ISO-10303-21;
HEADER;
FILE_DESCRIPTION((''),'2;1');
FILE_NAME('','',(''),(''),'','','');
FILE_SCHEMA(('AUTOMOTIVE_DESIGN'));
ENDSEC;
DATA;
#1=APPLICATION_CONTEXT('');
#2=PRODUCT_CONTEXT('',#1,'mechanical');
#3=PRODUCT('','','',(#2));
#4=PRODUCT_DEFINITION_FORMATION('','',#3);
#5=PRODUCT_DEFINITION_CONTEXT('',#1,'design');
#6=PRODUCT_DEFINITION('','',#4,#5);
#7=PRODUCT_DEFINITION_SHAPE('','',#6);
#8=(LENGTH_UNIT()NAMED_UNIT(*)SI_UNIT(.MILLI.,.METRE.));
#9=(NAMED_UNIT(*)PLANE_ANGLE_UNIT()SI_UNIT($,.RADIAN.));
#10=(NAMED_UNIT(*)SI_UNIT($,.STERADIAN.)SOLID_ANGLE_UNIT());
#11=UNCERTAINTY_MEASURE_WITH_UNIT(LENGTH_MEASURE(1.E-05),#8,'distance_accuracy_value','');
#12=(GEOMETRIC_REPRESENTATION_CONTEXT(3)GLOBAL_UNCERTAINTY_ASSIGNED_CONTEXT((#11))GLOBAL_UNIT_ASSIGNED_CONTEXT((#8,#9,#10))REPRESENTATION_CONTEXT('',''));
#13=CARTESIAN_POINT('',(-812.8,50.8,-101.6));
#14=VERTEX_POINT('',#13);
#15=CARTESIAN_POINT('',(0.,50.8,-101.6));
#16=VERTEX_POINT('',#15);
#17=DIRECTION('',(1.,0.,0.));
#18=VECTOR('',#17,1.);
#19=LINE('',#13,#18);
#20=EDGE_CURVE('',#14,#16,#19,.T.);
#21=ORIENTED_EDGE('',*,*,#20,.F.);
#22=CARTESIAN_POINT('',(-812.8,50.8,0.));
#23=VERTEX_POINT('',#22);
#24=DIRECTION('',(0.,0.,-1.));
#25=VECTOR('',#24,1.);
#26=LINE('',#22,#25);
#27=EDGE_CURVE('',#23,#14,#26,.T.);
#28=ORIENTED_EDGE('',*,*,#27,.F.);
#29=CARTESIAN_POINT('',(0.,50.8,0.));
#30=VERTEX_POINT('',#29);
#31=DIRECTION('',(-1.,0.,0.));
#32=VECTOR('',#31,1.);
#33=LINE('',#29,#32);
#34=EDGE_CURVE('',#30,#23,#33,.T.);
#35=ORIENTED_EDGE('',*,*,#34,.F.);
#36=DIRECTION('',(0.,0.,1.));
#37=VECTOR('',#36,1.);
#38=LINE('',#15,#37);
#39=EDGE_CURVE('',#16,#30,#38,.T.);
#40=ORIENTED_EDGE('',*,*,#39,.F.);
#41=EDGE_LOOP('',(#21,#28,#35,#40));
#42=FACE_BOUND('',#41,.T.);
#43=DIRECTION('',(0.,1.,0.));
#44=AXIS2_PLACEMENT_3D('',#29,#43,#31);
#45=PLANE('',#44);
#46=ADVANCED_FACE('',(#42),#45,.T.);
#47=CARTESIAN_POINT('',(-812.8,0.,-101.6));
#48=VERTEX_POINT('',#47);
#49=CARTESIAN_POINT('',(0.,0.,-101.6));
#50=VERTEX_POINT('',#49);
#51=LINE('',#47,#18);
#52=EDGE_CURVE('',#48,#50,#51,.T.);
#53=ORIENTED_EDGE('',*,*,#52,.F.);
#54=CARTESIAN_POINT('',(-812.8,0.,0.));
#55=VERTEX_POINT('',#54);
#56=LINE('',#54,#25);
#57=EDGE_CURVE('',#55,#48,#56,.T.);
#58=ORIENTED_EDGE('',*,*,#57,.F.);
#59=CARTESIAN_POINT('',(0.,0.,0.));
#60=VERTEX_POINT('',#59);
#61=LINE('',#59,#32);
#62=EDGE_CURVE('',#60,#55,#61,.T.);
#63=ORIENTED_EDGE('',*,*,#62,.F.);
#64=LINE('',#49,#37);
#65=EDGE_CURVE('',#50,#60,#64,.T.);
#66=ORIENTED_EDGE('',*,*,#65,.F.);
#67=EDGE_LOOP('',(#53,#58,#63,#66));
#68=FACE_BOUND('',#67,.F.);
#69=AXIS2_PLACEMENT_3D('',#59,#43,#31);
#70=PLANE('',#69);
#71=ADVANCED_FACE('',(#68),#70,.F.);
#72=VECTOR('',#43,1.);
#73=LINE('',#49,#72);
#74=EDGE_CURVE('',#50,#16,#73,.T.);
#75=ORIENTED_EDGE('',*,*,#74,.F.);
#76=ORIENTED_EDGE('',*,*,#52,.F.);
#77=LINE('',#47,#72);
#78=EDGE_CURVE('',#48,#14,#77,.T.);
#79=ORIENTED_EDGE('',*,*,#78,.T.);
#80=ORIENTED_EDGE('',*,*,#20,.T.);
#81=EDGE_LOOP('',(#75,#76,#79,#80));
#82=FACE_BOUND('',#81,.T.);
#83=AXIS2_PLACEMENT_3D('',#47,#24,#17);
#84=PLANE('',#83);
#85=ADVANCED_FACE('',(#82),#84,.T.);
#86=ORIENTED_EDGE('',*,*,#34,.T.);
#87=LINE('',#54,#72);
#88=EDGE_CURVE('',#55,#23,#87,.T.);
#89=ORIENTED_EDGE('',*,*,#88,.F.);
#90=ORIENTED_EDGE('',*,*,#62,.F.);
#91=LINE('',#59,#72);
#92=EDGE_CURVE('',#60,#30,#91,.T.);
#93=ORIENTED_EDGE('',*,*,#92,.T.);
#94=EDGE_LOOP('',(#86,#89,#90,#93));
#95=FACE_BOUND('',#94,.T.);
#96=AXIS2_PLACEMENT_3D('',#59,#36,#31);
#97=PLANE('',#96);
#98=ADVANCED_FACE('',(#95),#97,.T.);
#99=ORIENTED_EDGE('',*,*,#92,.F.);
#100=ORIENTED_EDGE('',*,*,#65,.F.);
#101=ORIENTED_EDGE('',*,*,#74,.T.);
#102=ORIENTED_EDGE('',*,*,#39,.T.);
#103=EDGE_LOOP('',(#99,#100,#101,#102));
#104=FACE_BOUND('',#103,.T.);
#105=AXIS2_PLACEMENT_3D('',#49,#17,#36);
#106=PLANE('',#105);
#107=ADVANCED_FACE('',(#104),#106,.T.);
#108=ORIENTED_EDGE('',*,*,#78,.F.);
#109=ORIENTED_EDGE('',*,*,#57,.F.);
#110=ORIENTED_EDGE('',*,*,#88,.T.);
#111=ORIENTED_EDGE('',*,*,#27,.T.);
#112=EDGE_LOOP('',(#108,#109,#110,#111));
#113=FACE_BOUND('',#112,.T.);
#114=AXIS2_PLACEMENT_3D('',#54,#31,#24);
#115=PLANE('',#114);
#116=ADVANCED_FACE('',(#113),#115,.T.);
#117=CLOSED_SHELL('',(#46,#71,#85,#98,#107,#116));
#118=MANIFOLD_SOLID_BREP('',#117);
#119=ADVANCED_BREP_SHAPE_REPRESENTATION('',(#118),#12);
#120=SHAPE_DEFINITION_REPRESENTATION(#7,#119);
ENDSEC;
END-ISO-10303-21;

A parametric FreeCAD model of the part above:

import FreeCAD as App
import Part
import Sketcher
from FreeCAD import Vector
Q = App.Units.Quantity

doc = App.newDocument("Part")
body = doc.addObject("PartDesign::Body", "Body")

# Sketch on XZ plane
sketch1 = doc.addObject("Sketcher::SketchObject", "Sketch")
body.addObject(sketch1)
sketch1.AttachmentSupport = (doc.XZ_Plane, [""])
sketch1.MapMode = "FlatFace"
sketch1.addGeometry(Part.LineSegment(Vector(-813, 0, 0), Vector(0, 0, 0)), False)
sketch1.addGeometry(Part.LineSegment(Vector(0, 0, 0), Vector(0, -102, 0)), False)
sketch1.addGeometry(Part.LineSegment(Vector(0, -102, 0), Vector(-813, -102, 0)), False)
sketch1.addGeometry(Part.LineSegment(Vector(-813, -102, 0), Vector(-813, 0, 0)), False)
sketch1.addConstraint(Sketcher.Constraint("Coincident", 0, 2, 1, 1))
sketch1.addConstraint(Sketcher.Constraint("Coincident", 1, 2, 2, 1))
sketch1.addConstraint(Sketcher.Constraint("Coincident", 2, 2, 3, 1))
sketch1.addConstraint(Sketcher.Constraint("Coincident", 3, 2, 0, 1))
sketch1.addConstraint(Sketcher.Constraint("Horizontal", 0))
sketch1.addConstraint(Sketcher.Constraint("Vertical", 1))
sketch1.addConstraint(Sketcher.Constraint("Horizontal", 2))
sketch1.addConstraint(Sketcher.Constraint("Vertical", 3))
sketch1.addConstraint(Sketcher.Constraint("Coincident", 0, 2, -1, 1))
sketch1.addConstraint(Sketcher.Constraint("DistanceX", 0, 1, 0, 2, Q("32 in")))
sketch1.addConstraint(Sketcher.Constraint("DistanceY", 1, 2, 1, 1, Q("4 in")))
pad1 = doc.addObject("PartDesign::Pad", "Pad")
body.addObject(pad1)
pad1.Profile = sketch1
pad1.Length = Q("2 in")
pad1.Reversed = True

doc.recompute()
